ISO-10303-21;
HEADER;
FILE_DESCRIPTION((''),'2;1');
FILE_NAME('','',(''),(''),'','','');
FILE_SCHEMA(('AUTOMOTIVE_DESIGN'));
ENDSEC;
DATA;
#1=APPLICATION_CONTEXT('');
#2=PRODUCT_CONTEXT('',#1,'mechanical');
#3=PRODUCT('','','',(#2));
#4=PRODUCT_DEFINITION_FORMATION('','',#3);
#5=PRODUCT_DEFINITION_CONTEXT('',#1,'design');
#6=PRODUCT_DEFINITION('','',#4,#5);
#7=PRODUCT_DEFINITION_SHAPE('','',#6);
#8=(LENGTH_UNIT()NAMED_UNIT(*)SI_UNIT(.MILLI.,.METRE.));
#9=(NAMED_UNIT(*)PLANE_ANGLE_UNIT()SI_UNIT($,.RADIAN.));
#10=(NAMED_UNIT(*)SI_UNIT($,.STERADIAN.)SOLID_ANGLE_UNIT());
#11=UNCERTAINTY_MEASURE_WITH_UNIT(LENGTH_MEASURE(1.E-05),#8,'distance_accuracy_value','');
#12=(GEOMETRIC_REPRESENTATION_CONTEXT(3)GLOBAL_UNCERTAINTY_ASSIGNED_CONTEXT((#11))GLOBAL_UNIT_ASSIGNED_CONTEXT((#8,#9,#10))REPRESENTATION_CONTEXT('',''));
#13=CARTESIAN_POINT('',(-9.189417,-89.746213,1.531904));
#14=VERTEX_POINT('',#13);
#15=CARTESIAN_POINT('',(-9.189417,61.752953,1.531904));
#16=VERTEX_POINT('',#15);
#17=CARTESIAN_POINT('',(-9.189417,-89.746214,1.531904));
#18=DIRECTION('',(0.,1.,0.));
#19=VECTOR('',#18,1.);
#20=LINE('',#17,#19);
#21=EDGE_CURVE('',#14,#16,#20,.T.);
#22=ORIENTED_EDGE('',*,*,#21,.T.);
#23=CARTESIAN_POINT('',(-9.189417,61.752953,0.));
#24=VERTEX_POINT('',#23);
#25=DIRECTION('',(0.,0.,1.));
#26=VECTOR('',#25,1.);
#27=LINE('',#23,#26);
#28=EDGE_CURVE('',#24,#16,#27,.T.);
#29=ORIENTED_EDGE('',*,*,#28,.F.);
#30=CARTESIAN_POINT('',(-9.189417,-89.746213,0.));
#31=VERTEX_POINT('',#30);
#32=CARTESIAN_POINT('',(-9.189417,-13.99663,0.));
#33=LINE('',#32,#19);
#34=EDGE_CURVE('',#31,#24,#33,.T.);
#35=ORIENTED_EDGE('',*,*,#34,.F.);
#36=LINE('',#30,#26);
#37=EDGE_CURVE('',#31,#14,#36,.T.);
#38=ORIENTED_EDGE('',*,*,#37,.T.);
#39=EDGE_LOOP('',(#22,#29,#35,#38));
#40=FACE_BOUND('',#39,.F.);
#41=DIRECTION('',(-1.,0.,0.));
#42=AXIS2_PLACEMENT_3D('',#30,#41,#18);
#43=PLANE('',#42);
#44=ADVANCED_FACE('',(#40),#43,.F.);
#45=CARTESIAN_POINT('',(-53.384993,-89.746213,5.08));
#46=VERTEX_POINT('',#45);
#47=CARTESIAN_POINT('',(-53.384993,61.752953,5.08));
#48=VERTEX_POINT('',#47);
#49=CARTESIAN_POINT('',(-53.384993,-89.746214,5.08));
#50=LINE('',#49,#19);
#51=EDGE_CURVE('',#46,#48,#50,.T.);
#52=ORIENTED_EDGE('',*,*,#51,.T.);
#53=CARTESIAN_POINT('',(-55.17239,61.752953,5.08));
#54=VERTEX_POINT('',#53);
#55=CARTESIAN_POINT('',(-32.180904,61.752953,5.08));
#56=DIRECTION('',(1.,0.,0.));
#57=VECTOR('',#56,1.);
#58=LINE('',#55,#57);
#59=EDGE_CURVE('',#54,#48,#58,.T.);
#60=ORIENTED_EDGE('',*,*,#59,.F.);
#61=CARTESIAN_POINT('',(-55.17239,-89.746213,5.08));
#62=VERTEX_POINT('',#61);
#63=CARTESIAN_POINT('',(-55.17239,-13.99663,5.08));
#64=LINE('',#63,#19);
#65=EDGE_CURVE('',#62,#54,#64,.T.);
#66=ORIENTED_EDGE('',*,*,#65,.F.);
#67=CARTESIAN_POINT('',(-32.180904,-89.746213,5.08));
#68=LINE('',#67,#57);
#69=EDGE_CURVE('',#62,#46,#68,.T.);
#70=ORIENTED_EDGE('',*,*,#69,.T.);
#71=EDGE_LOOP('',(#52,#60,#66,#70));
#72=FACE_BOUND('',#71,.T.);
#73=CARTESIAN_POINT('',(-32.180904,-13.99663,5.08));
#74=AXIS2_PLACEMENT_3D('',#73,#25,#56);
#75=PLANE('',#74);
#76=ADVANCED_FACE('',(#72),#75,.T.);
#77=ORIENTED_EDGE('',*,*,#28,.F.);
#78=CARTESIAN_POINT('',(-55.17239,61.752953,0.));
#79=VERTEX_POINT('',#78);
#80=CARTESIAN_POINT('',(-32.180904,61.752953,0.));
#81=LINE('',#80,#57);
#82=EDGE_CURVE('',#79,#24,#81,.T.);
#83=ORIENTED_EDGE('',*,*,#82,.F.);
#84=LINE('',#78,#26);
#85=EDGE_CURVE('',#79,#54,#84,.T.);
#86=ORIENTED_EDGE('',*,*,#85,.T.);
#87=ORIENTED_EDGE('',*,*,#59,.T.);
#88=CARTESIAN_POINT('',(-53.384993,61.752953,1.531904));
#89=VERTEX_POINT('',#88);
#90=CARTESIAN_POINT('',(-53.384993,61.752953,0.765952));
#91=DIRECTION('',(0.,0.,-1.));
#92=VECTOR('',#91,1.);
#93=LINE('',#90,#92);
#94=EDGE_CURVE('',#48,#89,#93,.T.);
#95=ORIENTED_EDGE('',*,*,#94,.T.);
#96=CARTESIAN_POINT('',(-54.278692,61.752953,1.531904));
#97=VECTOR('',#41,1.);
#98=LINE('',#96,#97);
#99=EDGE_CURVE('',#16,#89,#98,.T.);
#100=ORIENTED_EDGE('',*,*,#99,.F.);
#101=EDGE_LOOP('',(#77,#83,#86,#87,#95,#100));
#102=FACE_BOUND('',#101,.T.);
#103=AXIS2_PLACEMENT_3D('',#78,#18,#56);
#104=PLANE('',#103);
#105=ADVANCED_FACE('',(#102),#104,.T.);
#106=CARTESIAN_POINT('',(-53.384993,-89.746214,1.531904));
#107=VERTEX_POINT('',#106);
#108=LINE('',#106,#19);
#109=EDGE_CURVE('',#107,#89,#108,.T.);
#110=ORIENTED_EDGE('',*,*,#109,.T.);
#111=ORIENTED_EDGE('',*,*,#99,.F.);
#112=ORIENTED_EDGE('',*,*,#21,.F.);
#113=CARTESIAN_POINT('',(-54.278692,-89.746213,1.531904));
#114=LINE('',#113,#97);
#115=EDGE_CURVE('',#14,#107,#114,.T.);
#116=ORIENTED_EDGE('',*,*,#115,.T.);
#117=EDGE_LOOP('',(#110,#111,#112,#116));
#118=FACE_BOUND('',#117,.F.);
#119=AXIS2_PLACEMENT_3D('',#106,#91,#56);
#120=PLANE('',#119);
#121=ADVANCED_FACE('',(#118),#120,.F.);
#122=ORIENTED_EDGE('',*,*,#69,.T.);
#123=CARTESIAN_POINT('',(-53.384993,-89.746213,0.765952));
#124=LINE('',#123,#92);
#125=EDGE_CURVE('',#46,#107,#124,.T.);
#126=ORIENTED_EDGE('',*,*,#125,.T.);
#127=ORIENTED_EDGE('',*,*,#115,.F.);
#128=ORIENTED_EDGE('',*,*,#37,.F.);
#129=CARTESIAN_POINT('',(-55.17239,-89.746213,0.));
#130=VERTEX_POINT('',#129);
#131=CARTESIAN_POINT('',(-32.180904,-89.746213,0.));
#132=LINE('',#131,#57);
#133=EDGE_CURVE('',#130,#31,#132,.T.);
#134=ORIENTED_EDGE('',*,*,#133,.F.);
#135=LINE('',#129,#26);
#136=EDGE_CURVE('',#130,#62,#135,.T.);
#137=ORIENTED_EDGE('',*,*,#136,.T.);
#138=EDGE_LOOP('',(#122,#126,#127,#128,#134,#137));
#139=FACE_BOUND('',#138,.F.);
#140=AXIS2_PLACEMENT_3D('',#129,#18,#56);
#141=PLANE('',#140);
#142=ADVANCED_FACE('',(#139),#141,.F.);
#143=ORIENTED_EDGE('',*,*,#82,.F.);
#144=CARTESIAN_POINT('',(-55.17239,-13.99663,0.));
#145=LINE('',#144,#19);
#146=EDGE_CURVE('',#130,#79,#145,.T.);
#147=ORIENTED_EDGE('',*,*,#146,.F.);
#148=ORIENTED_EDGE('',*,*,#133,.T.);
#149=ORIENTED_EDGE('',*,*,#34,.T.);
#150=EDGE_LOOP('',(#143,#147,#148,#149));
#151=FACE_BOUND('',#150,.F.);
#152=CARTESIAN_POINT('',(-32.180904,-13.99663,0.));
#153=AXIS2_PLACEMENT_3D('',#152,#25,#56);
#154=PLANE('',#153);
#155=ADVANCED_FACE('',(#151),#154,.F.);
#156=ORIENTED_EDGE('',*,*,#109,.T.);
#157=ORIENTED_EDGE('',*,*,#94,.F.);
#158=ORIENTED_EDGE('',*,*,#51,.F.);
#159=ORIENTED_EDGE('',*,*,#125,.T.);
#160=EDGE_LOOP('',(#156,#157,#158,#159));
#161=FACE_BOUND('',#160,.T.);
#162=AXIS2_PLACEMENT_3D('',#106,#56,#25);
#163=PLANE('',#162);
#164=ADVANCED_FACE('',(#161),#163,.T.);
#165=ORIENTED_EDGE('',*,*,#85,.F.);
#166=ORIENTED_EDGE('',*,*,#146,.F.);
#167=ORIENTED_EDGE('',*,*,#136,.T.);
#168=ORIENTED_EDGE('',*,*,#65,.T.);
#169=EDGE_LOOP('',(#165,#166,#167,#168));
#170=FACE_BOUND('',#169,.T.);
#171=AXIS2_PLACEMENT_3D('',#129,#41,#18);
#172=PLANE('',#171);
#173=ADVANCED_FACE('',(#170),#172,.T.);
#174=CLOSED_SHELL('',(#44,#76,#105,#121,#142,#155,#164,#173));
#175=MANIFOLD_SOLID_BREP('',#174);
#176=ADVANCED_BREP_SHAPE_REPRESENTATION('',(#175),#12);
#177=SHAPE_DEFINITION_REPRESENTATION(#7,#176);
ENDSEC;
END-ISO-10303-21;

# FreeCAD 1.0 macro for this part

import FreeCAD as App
import Part
import Sketcher

V = App.Vector
Q = App.Units.Quantity


def add_polygon(sketch, points):
    """Adds a closed chain of lines whose ends are joined by coincident constraints."""
    first, n = sketch.GeometryCount, len(points)
    for a, b in zip(points, points[1:] + points[:1]):
        sketch.addGeometry(Part.LineSegment(App.Vector(*a, 0), App.Vector(*b, 0)), False)
    for i in range(n):
        sketch.addConstraint(Sketcher.Constraint("Coincident", first + i, 2, first + (i + 1) % n, 1))

doc = App.newDocument("Part")
params = doc.addObject("Spreadsheet::Sheet", "Params")
for row, (alias, value) in enumerate([
    ("pad1_length", "0.2 in"),
], start=1):
    params.set(f"A{row}", alias)
    params.set(f"B{row}", "=" + value)
    params.setAlias(f"B{row}", alias)

body = doc.addObject("PartDesign::Body", "Body")

# Sketch on XY plane
sketch1 = body.newObject("Sketcher::SketchObject", "Sketch")
sketch1.AttachmentSupport = (doc.getObject("XY_Plane"), [""])
sketch1.MapMode = "FlatFace"
add_polygon(sketch1, [(-55, 62), (-55, -90), (-9, -90), (-9, 62)])  # lines 0-3
sketch1.addConstraint([
    Sketcher.Constraint("Vertical", 0),
    Sketcher.Constraint("Horizontal", 1),
    Sketcher.Constraint("Vertical", 2),
    Sketcher.Constraint("Horizontal", 3),
    Sketcher.Constraint("DistanceX", 1, 1, 1, 2, 45.982973),
    Sketcher.Constraint("DistanceY", 0, 2, 0, 1, 151.499167),
    Sketcher.Constraint("DistanceX", 0, 2, -1, 1, 55.17239),
    Sketcher.Constraint("DistanceY", 0, 2, -1, 1, 89.746213),
])
pad1 = body.newObject("PartDesign::Pad", "Pad")
pad1.Profile = sketch1
pad1.setExpression("Length", "Params.pad1_length")

# Sketch on XZ plane
sketch2 = body.newObject("Sketcher::SketchObject", "Sketch001")
sketch2.AttachmentSupport = (doc.getObject("XZ_Plane"), [""])
sketch2.MapMode = "FlatFace"
sketch2.AttachmentOffset = App.Placement(V(0, 0, 89.746214), App.Rotation())
add_polygon(sketch2, [(-53.4, 5.1), (-53.4, 1.5), (-9.2, 1.5), (-9.2, 5.1)])  # lines 0-3
sketch2.addConstraint([
    Sketcher.Constraint("Vertical", 0),
    Sketcher.Constraint("Horizontal", 1),
    Sketcher.Constraint("Vertical", 2),
    Sketcher.Constraint("Horizontal", 3),
    Sketcher.Constraint("DistanceY", -1, 1, 2, 2, Q("0.2 in")),
    Sketcher.Constraint("DistanceX", 1, 1, 1, 2, 44.195575),
    Sketcher.Constraint("DistanceY", 0, 2, 0, 1, 3.548096),
    Sketcher.Constraint("DistanceX", 0, 2, -1, 1, 53.384993),
])
pocket1 = body.newObject("PartDesign::Pocket", "Pocket")
pocket1.Profile = sketch2
pocket1.Type = "ThroughAll"

doc.recompute()
